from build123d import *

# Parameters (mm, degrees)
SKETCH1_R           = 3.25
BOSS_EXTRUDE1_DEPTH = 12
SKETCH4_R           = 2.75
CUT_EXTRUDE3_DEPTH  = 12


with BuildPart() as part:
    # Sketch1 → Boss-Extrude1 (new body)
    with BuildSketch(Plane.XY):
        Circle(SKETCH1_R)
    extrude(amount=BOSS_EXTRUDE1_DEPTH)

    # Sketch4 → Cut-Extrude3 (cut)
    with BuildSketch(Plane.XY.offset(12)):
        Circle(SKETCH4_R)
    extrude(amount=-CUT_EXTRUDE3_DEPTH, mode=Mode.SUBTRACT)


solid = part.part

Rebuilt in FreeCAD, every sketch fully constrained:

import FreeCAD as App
import Part
import Sketcher

V = App.Vector

doc = App.newDocument("Part")
body = doc.addObject("PartDesign::Body", "Body")

sketch1 = body.newObject("Sketcher::SketchObject", "Sketch")
sketch1.AttachmentSupport = (doc.getObject("XY_Plane"), [""])
sketch1.MapMode = "FlatFace"
sketch1.addGeometry(Part.Circle(V(0, 0, 0), V(0, 0, 1), 3.2), False)
sketch1.addConstraint([
    Sketcher.Constraint("Coincident", 0, 3, -1, 1),
    Sketcher.Constraint("Diameter", 0, 6.5),
])
pad1 = body.newObject("PartDesign::Pad", "Pad")
pad1.Profile = sketch1
pad1.Length = 12

sketch2 = body.newObject("Sketcher::SketchObject", "Sketch001")
sketch2.AttachmentSupport = (doc.getObject("XY_Plane"), [""])
sketch2.MapMode = "FlatFace"
sketch2.AttachmentOffset = App.Placement(V(0, 0, 12), App.Rotation())
sketch2.addGeometry(Part.Circle(V(0, 0, 0), V(0, 0, 1), 2.8), False)
sketch2.addConstraint([
    Sketcher.Constraint("Coincident", 0, 3, -1, 1),
    Sketcher.Constraint("Diameter", 0, 5.5),
])
pocket1 = body.newObject("PartDesign::Pocket", "Pocket")
pocket1.Profile = sketch2
pocket1.Length = 12

doc.recompute()
